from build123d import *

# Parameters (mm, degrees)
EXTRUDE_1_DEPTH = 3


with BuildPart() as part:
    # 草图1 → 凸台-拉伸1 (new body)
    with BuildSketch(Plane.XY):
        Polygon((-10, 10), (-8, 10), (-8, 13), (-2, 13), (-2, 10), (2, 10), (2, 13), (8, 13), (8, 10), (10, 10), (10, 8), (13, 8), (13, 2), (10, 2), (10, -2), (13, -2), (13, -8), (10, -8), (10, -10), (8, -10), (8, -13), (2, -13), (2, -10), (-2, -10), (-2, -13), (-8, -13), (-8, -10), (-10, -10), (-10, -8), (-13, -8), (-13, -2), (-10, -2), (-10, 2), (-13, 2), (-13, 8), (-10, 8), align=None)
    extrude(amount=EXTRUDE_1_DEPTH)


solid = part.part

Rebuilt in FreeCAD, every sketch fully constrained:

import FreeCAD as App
import Part
import Sketcher
from FreeCAD import Vector


def add_polygon(sketch, points):
    """Adds a closed chain of lines whose ends are joined by coincident constraints."""
    first, n = sketch.GeometryCount, len(points)
    for a, b in zip(points, points[1:] + points[:1]):
        sketch.addGeometry(Part.LineSegment(App.Vector(*a, 0), App.Vector(*b, 0)), False)
    for i in range(n):
        sketch.addConstraint(Sketcher.Constraint("Coincident", first + i, 2, first + (i + 1) % n, 1))

doc = App.newDocument("Part")
body = doc.addObject("PartDesign::Body", "Body")

# Sketch on XY plane
sketch1 = body.newObject("Sketcher::SketchObject", "Sketch")
sketch1.AttachmentSupport = (doc.getObject("XY_Plane"), [""])
sketch1.MapMode = "FlatFace"
add_polygon(sketch1, [(-8, 10), (-10, 10), (-10, 8), (-13, 8), (-13, 2), (-10, 2), (-10, -2), (-13, -2), (-13, -8), (-10, -8), (-10, -10), (-8, -10), (-8, -13), (-2, -13), (-2, -10), (2, -10), (2, -13), (8, -13), (8, -10), (10, -10), (10, -8), (13, -8), (13, -2), (10, -2), (10, 2), (13, 2), (13, 8), (10, 8), (10, 10), (8, 10), (8, 13), (2, 13), (2, 10), (-2, 10), (-2, 13), (-8, 13)])  # lines 0-35
sketch1.addConstraint([
    Sketcher.Constraint("Horizontal", 0),
    Sketcher.Constraint("Vertical", 1),
    Sketcher.Constraint("Horizontal", 2),
    Sketcher.Constraint("Vertical", 3),
    Sketcher.Constraint("Horizontal", 4),
    Sketcher.Constraint("Vertical", 5),
    Sketcher.Constraint("Horizontal", 6),
    Sketcher.Constraint("Vertical", 7),
    Sketcher.Constraint("Horizontal", 8),
    Sketcher.Constraint("Vertical", 9),
    Sketcher.Constraint("Horizontal", 10),
    Sketcher.Constraint("Vertical", 11),
    Sketcher.Constraint("Horizontal", 12),
    Sketcher.Constraint("Vertical", 13),
    Sketcher.Constraint("Horizontal", 14),
    Sketcher.Constraint("Vertical", 15),
    Sketcher.Constraint("Horizontal", 16),
    Sketcher.Constraint("Vertical", 17),
    Sketcher.Constraint("Horizontal", 18),
    Sketcher.Constraint("Vertical", 19),
    Sketcher.Constraint("Horizontal", 20),
    Sketcher.Constraint("Vertical", 21),
    Sketcher.Constraint("Horizontal", 22),
    Sketcher.Constraint("Vertical", 23),
    Sketcher.Constraint("Horizontal", 24),
    Sketcher.Constraint("Vertical", 25),
    Sketcher.Constraint("Horizontal", 26),
    Sketcher.Constraint("Vertical", 27),
    Sketcher.Constraint("Horizontal", 28),
    Sketcher.Constraint("Vertical", 29),
    Sketcher.Constraint("Horizontal", 30),
    Sketcher.Constraint("Vertical", 31),
    Sketcher.Constraint("Horizontal", 32),
    Sketcher.Constraint("Vertical", 33),
    Sketcher.Constraint("Horizontal", 34),
    Sketcher.Constraint("Vertical", 35),
    Sketcher.Constraint("Symmetric", 0, 2, 18, 2, -1, 1),
    Sketcher.Constraint("Symmetric", 2, 2, 20, 2, -1, 1),
    Sketcher.Constraint("Symmetric", 4, 2, 22, 2, -1, 1),
    Sketcher.Constraint("Symmetric", 6, 2, 24, 2, -1, 1),
    Sketcher.Constraint("Symmetric", 8, 2, 26, 2, -1, 1),
    Sketcher.Constraint("Symmetric", 10, 2, 28, 2, -1, 1),
    Sketcher.Constraint("Symmetric", 12, 2, 30, 2, -1, 1),
    Sketcher.Constraint("Symmetric", 14, 2, 32, 2, -1, 1),
    Sketcher.Constraint("Symmetric", 16, 2, 34, 2, -1, 1),
    Sketcher.Constraint("Symmetric", 12, 2, 15, 2, -2),
    Sketcher.Constraint("Symmetric", 10, 2, 17, 2, -2),
    Sketcher.Constraint("Symmetric", 8, 2, 19, 2, -2),
    Sketcher.Constraint("Symmetric", 6, 2, 21, 2, -2),
    Sketcher.Constraint("Horizontal", 10, 2, 13, 2),
    Sketcher.Constraint("Vertical", 1, 2, 4, 2),
    Sketcher.Constraint("Equal", 28, 1),
    Sketcher.Constraint("Equal", 34, 3),
    Sketcher.Constraint("Equal", 32, 5),
    Sketcher.Constraint("Equal", 26, 11),
    Sketcher.Constraint("DistanceX", 0, 2, 0, 1, 2.0),
    Sketcher.Constraint("DistanceX", 2, 2, 2, 1, 3.0),
    Sketcher.Constraint("DistanceX", 12, 1, 12, 2, 6.0),
    Sketcher.Constraint("DistanceX", 14, 1, 14, 2, 4.0),
])
pad1 = body.newObject("PartDesign::Pad", "Pad")
pad1.Profile = sketch1
pad1.Length = 3

doc.recompute()
